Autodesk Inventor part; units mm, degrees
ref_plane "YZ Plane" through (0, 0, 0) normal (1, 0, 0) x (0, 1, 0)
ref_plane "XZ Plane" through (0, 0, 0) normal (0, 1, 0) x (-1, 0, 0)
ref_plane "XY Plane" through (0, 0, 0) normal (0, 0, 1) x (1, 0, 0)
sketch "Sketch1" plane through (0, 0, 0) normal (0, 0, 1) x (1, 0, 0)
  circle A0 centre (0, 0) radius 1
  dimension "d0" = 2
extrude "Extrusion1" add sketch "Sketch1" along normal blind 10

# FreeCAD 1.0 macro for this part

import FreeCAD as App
import Part
import Sketcher
from FreeCAD import Vector
Q = App.Units.Quantity

doc = App.newDocument("Part")
body = doc.addObject("PartDesign::Body", "Body")

# Sketch on XY plane
sketch1 = body.newObject("Sketcher::SketchObject", "Sketch")
sketch1.AttachmentSupport = (doc.getObject("XY_Plane"), [""])
sketch1.MapMode = "FlatFace"
sketch1.addGeometry(Part.Circle(Vector(0, 0, 0), Vector(0, 0, 1), 1), False)
sketch1.addConstraint([
    Sketcher.Constraint("Coincident", 0, 3, -1, 1),
    Sketcher.Constraint("Diameter", 0, Q("2 mm")),
])
pad1 = body.newObject("PartDesign::Pad", "Pad")
pad1.Profile = sketch1
pad1.Length = 10

doc.recompute()
